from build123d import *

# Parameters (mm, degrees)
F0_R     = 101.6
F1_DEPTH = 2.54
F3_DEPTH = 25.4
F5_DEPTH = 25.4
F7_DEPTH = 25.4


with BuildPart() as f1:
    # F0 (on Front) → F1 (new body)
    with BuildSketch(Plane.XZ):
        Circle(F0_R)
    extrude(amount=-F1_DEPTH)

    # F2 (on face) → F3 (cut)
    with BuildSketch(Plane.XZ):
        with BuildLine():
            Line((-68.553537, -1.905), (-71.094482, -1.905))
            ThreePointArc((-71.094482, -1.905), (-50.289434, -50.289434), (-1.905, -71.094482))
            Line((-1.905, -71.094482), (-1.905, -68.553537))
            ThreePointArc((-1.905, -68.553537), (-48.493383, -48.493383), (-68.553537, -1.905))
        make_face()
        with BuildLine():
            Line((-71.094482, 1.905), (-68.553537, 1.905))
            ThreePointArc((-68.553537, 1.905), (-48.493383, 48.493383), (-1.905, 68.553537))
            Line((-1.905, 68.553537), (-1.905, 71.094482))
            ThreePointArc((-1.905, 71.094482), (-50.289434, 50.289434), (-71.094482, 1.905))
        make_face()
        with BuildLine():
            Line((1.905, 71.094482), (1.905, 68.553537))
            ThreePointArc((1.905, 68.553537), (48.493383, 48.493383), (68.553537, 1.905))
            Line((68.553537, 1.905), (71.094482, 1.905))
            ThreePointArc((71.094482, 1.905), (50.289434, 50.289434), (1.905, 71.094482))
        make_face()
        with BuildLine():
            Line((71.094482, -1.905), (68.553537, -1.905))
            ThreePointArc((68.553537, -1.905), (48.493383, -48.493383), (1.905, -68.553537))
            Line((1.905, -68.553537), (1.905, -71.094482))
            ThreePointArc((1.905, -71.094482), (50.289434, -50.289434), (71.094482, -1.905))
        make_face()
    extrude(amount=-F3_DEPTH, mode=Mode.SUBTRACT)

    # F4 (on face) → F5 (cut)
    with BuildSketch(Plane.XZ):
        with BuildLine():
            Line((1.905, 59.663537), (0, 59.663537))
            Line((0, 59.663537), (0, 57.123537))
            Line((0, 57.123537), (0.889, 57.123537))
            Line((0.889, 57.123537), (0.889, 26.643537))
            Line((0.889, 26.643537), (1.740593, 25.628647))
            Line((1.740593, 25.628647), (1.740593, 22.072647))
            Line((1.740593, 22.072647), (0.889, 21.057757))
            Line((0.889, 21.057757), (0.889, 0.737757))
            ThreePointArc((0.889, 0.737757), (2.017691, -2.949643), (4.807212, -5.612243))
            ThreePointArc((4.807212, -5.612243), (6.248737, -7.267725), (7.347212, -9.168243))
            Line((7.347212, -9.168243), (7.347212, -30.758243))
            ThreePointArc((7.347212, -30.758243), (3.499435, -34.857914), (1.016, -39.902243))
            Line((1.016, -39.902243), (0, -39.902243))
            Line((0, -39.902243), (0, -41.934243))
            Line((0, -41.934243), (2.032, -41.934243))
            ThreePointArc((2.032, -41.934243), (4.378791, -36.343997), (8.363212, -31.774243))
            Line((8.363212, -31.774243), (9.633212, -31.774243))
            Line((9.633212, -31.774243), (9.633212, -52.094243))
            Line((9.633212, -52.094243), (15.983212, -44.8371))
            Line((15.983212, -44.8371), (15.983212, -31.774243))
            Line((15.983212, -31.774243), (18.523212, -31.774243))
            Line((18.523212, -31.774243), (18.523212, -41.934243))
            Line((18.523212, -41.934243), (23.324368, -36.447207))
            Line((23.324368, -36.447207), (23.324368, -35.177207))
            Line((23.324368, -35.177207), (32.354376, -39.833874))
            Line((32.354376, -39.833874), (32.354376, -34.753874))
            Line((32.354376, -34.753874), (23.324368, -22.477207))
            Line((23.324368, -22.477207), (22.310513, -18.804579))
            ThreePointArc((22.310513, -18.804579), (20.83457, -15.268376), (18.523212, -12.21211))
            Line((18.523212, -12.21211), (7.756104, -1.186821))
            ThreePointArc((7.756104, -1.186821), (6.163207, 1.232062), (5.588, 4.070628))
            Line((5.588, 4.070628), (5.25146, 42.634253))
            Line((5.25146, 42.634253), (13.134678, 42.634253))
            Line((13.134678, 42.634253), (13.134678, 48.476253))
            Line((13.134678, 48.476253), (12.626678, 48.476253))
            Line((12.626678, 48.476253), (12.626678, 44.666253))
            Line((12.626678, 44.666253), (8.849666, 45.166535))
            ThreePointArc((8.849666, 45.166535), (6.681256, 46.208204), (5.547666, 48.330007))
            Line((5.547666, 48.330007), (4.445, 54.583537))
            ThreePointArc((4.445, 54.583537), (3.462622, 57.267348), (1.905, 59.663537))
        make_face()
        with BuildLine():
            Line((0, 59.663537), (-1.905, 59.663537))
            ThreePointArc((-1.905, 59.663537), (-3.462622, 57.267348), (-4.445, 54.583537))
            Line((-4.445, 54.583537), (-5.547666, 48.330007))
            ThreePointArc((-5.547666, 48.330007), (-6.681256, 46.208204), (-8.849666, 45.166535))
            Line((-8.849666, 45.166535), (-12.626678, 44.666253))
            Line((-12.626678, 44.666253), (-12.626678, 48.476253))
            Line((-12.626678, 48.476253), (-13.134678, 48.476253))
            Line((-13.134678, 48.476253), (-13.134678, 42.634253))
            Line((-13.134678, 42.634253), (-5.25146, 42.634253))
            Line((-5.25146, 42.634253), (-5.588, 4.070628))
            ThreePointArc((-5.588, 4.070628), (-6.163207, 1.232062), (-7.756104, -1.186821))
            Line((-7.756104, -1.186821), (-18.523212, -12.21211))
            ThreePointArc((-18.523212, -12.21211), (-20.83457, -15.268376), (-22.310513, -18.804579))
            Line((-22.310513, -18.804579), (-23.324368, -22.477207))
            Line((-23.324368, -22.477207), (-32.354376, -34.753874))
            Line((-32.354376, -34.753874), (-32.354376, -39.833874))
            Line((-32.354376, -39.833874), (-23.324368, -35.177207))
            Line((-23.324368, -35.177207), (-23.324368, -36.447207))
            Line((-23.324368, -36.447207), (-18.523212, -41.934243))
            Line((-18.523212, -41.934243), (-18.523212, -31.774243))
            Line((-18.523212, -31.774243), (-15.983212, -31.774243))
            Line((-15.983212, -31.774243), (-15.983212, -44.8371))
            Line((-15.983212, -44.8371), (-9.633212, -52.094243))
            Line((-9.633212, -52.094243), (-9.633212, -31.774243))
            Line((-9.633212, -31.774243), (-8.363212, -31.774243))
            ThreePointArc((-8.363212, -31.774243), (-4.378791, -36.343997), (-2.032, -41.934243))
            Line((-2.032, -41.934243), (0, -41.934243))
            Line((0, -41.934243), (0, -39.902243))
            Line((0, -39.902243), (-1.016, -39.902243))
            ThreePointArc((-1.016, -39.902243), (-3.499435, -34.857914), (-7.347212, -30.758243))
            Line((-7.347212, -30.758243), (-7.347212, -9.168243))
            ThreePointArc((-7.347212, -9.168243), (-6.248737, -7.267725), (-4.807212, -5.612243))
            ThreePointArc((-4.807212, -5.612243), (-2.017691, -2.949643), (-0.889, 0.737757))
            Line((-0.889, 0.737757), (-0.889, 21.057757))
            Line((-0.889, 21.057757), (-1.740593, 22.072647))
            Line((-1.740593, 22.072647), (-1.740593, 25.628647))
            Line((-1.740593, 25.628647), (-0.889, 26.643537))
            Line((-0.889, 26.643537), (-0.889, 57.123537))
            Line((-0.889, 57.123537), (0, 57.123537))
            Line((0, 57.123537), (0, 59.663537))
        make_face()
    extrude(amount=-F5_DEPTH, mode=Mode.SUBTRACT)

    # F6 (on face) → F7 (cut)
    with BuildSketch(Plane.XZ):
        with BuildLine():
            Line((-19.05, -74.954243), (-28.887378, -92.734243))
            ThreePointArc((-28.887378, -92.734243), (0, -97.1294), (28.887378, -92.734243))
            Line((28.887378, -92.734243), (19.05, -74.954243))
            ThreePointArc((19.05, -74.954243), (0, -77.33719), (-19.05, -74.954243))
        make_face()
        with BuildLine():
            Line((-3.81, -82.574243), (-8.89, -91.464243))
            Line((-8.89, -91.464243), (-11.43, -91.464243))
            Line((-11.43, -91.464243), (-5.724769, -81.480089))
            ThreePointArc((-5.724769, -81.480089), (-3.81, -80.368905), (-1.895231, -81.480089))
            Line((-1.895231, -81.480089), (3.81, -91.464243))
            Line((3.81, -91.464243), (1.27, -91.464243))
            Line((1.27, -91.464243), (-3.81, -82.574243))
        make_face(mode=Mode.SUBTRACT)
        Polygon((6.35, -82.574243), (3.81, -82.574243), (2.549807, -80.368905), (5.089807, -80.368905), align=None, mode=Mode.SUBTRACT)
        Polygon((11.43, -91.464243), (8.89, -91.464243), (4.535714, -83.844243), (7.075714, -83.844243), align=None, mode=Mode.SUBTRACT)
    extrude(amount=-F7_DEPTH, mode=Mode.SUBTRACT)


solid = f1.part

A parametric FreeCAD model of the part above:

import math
import FreeCAD as App
import Part
import Sketcher
from FreeCAD import Vector
Q = App.Units.Quantity

doc = App.newDocument("Part")
params = doc.addObject("Spreadsheet::Sheet", "Params")
for row, (alias, value) in enumerate([
    ("sketch1_diameter", "8 in"),
    ("pad1_length", "0.1 in"),
    ("sketch2_radius", "2.8 in"),
    ("sketch2_radius2", "2.7000001 in"),
    ("pocket1_length", "1 in"),
    ("sketch3_radius", "0.5 in"),
    ("sketch3_radius2", "0.3000001 in"),
    ("sketch3_width", "0.1 in"),
    ("sketch3_height", "0.2 in"),
    ("sketch3_height2", "0.4 in"),
    ("pocket2_length", "1 in"),
    ("sketch4_width", "0.1 in"),
    ("sketch4_length", "0.8 in"),
    ("sketch4_length2", "0.1 in"),
    ("pocket3_length", "1 in"),
], start=1):
    params.set(f"A{row}", alias)
    params.set(f"B{row}", "=" + value)
    params.setAlias(f"B{row}", alias)

body = doc.addObject("PartDesign::Body", "Body")
body.AllowCompound = True

# Sketch on XZ plane
sketch1 = body.newObject("Sketcher::SketchObject", "Sketch")
sketch1.AttachmentSupport = (doc.getObject("XZ_Plane"), [""])
sketch1.MapMode = "FlatFace"
sketch1.addGeometry(Part.Circle(Vector(0, 0, 0), Vector(0, 0, 1), 101.6), False)
sketch1.addConstraint(Sketcher.Constraint("Coincident", 0, 3, -1, 1))
sketch1.addConstraint(Sketcher.Constraint("Diameter", 0, Q("8 in")))
sketch1.setExpression("Constraints[1]", "Params.sketch1_diameter")
pad1 = body.newObject("PartDesign::Pad", "Pad")
pad1.Profile = sketch1
pad1.setExpression("Length", "Params.pad1_length")
pad1.Reversed = True

# Sketch on XZ plane
sketch2 = body.newObject("Sketcher::SketchObject", "Sketch001")
sketch2.AttachmentSupport = (doc.getObject("XZ_Plane"), [""])
sketch2.MapMode = "FlatFace"
sketch2.addGeometry(Part.LineSegment(Vector(-68.553537, -1.905, 0), Vector(-71.094482, -1.905, 0)), False)
sketch2.addGeometry(Part.ArcOfCircle(Part.Circle(Vector(0.000001, 0.000001, 0), Vector(0, 0, 1), 71.120001), math.radians(-178.465107), math.radians(-91.534893)), False)
sketch2.addGeometry(Part.LineSegment(Vector(-1.905, -71.094482, 0), Vector(-1.905, -68.553537, 0)), False)
sketch2.addGeometry(Part.ArcOfCircle(Part.Circle(Vector(0.000001, 0.000001, 0), Vector(0, 0, 1), 68.580002), math.radians(-178.408245), math.radians(-91.591755)), False)
sketch2.addGeometry(Part.LineSegment(Vector(-71.094482, 1.905, 0), Vector(-68.553537, 1.905, 0)), False)
sketch2.addGeometry(Part.ArcOfCircle(Part.Circle(Vector(0.000001, -0.000001, 0), Vector(0, 0, 1), 68.580002), math.radians(91.591755), math.radians(178.408245)), False)
sketch2.addGeometry(Part.LineSegment(Vector(-1.905, 68.553537, 0), Vector(-1.905, 71.094482, 0)), False)
sketch2.addGeometry(Part.ArcOfCircle(Part.Circle(Vector(0.000001, -0.000001, 0), Vector(0, 0, 1), 71.120001), math.radians(91.534893), math.radians(178.465107)), False)
sketch2.addGeometry(Part.LineSegment(Vector(1.905, 71.094482, 0), Vector(1.905, 68.553537, 0)), False)
sketch2.addGeometry(Part.ArcOfCircle(Part.Circle(Vector(-0.000001, -0.000001, 0), Vector(0, 0, 1), 68.580002), math.radians(1.591755), math.radians(88.408245)), False)
sketch2.addGeometry(Part.LineSegment(Vector(68.553537, 1.905, 0), Vector(71.094482, 1.905, 0)), False)
sketch2.addGeometry(Part.ArcOfCircle(Part.Circle(Vector(-0.000001, -0.000001, 0), Vector(0, 0, 1), 71.120001), math.radians(1.534893), math.radians(88.465107)), False)
sketch2.addGeometry(Part.LineSegment(Vector(71.094482, -1.905, 0), Vector(68.553537, -1.905, 0)), False)
sketch2.addGeometry(Part.ArcOfCircle(Part.Circle(Vector(-0.000001, 0.000001, 0), Vector(0, 0, 1), 68.580002), math.radians(-88.408245), math.radians(-1.591755)), False)
sketch2.addGeometry(Part.LineSegment(Vector(1.905, -68.553537, 0), Vector(1.905, -71.094482, 0)), False)
sketch2.addGeometry(Part.ArcOfCircle(Part.Circle(Vector(-0.000001, 0.000001, 0), Vector(0, 0, 1), 71.120001), math.radians(-88.465107), math.radians(-1.534893)), False)
sketch2.addConstraint(Sketcher.Constraint("Coincident", 0, 2, 1, 1))
sketch2.addConstraint(Sketcher.Constraint("Coincident", 1, 2, 2, 1))
sketch2.addConstraint(Sketcher.Constraint("Coincident", 2, 2, 3, 2))
sketch2.addConstraint(Sketcher.Constraint("Coincident", 3, 1, 0, 1))
sketch2.addConstraint(Sketcher.Constraint("Coincident", 4, 2, 5, 2))
sketch2.addConstraint(Sketcher.Constraint("Coincident", 5, 1, 6, 1))
sketch2.addConstraint(Sketcher.Constraint("Coincident", 6, 2, 7, 1))
sketch2.addConstraint(Sketcher.Constraint("Coincident", 7, 2, 4, 1))
sketch2.addConstraint(Sketcher.Constraint("Coincident", 8, 2, 9, 2))
sketch2.addConstraint(Sketcher.Constraint("Coincident", 9, 1, 10, 1))
sketch2.addConstraint(Sketcher.Constraint("Coincident", 10, 2, 11, 1))
sketch2.addConstraint(Sketcher.Constraint("Coincident", 11, 2, 8, 1))
sketch2.addConstraint(Sketcher.Constraint("Coincident", 12, 2, 13, 2))
sketch2.addConstraint(Sketcher.Constraint("Coincident", 13, 1, 14, 1))
sketch2.addConstraint(Sketcher.Constraint("Coincident", 14, 2, 15, 1))
sketch2.addConstraint(Sketcher.Constraint("Coincident", 15, 2, 12, 1))
sketch2.addConstraint(Sketcher.Constraint("Horizontal", 0))
sketch2.addConstraint(Sketcher.Constraint("Vertical", 2))
sketch2.addConstraint(Sketcher.Constraint("Horizontal", 4))
sketch2.addConstraint(Sketcher.Constraint("Vertical", 6))
sketch2.addConstraint(Sketcher.Constraint("Vertical", 8))
sketch2.addConstraint(Sketcher.Constraint("Horizontal", 10))
sketch2.addConstraint(Sketcher.Constraint("Horizontal", 12))
sketch2.addConstraint(Sketcher.Constraint("Vertical", 14))
sketch2.addConstraint(Sketcher.Constraint("Coincident", 1, 3, -1, 1))
sketch2.addConstraint(Sketcher.Constraint("Coincident", 3, 3, -1, 1))
sketch2.addConstraint(Sketcher.Constraint("Coincident", 5, 3, -1, 1))
sketch2.addConstraint(Sketcher.Constraint("Coincident", 7, 3, -1, 1))
sketch2.addConstraint(Sketcher.Constraint("Coincident", 9, 3, -1, 1))
sketch2.addConstraint(Sketcher.Constraint("Coincident", 11, 3, -1, 1))
sketch2.addConstraint(Sketcher.Constraint("Coincident", 13, 3, -1, 1))
sketch2.addConstraint(Sketcher.Constraint("Coincident", 15, 3, -1, 1))
sketch2.addConstraint(Sketcher.Constraint("Equal", 3, 5))
sketch2.addConstraint(Sketcher.Constraint("Equal", 1, 7))
sketch2.addConstraint(Sketcher.Constraint("Equal", 5, 9))
sketch2.addConstraint(Sketcher.Constraint("Equal", 7, 11))
sketch2.addConstraint(Sketcher.Constraint("Equal", 9, 13))
sketch2.addConstraint(Sketcher.Constraint("Equal", 11, 15))
sketch2.addConstraint(Sketcher.Constraint("Horizontal", 5, 1, 8, 2))
sketch2.addConstraint(Sketcher.Constraint("Horizontal", 7, 2, 9, 1))
sketch2.addConstraint(Sketcher.Constraint("Horizontal", 3, 1, 12, 2))
sketch2.addConstraint(Sketcher.Constraint("Horizontal", 2, 2, 13, 1))
sketch2.addConstraint(Sketcher.Constraint("Vertical", 3, 1, 4, 2))
sketch2.addConstraint(Sketcher.Constraint("Vertical", 2, 2, 5, 1))
sketch2.addConstraint(Sketcher.Constraint("Radius", 1, Q("2.8 in")))
sketch2.addConstraint(Sketcher.Constraint("Radius", 3, Q("2.7000001 in")))
sketch2.addConstraint(Sketcher.Constraint("DistanceY", 3, 1, 4, 2, Q("0.15 in")))
sketch2.addConstraint(Sketcher.Constraint("DistanceX", 5, 1, 8, 2, Q("0.15 in")))
sketch2.setExpression("Constraints[44]", "Params.sketch2_radius")
sketch2.setExpression("Constraints[45]", "Params.sketch2_radius2")
pocket1 = body.newObject("PartDesign::Pocket", "Pocket")
pocket1.Profile = sketch2
pocket1.setExpression("Length", "Params.pocket1_length")

# Sketch on XZ plane
sketch3 = body.newObject("Sketcher::SketchObject", "Sketch002")
sketch3.AttachmentSupport = (doc.getObject("XZ_Plane"), [""])
sketch3.MapMode = "FlatFace"
sketch3.addGeometry(Part.LineSegment(Vector(1.905, 59.663537, 0), Vector(-1.905, 59.663537, 0)), False)
sketch3.addGeometry(Part.ArcOfCircle(Part.Circle(Vector(7.896604, 51.587735, 0), Vector(0, 0, 1), 12.7), math.radians(140.513983), math.radians(166.355915)), False)
sketch3.addGeometry(Part.LineSegment(Vector(-4.445, 54.583537, 0), Vector(-5.547666, 48.330007, 0)), False)
sketch3.addGeometry(Part.ArcOfCircle(Part.Circle(Vector(-9.357666, 49.001813, 0), Vector(0, 0, 1), 3.868776), math.radians(-82.454833), math.radians(-10.000009)), False)
sketch3.addGeometry(Part.LineSegment(Vector(-8.849666, 45.166535, 0), Vector(-12.626678, 44.666253, 0)), False)
sketch3.addGeometry(Part.LineSegment(Vector(-12.626678, 44.666253, 0), Vector(-12.626678, 48.476253, 0)), False)
sketch3.addGeometry(Part.LineSegment(Vector(-12.626678, 48.476253, 0), Vector(-13.134678, 48.476253, 0)), False)
sketch3.addGeometry(Part.LineSegment(Vector(-13.134678, 48.476253, 0), Vector(-13.134678, 42.634253, 0)), False)
sketch3.addGeometry(Part.LineSegment(Vector(-13.134678, 42.634253, 0), Vector(-5.25146, 42.634253, 0)), False)
sketch3.addGeometry(Part.LineSegment(Vector(-5.25146, 42.634253, 0), Vector(-5.588, 4.070628, 0)), False)
sketch3.addGeometry(Part.ArcOfCircle(Part.Circle(Vector(-13.207704, 4.137122, 0), Vector(0, 0, 1), 7.619994), math.radians(-44.321254), math.radians(-0.499982)), False)
sketch3.addGeometry(Part.LineSegment(Vector(-7.756104, -1.186821, 0), Vector(-18.523212, -12.21211, 0)), False)
sketch3.addGeometry(Part.ArcOfCircle(Part.Circle(Vector(-7.620012, -22.859994, 0), Vector(0, 0, 1), 15.239987), math.radians(135.678751), math.radians(164.567461)), False)
sketch3.addGeometry(Part.LineSegment(Vector(-22.310513, -18.804579, 0), Vector(-23.324368, -22.477207, 0)), False)
sketch3.addGeometry(Part.LineSegment(Vector(-23.324368, -22.477207, 0), Vector(-32.354376, -34.753874, 0)), False)
sketch3.addGeometry(Part.LineSegment(Vector(-32.354376, -34.753874, 0), Vector(-32.354376, -39.833874, 0)), False)
sketch3.addGeometry(Part.LineSegment(Vector(-32.354376, -39.833874, 0), Vector(-23.324368, -35.177207, 0)), False)
sketch3.addGeometry(Part.LineSegment(Vector(-23.324368, -35.177207, 0), Vector(-23.324368, -36.447207, 0)), False)
sketch3.addGeometry(Part.LineSegment(Vector(-23.324368, -36.447207, 0), Vector(-18.523212, -41.934243, 0)), False)
sketch3.addGeometry(Part.LineSegment(Vector(-18.523212, -41.934243, 0), Vector(-18.523212, -31.774243, 0)), False)
sketch3.addGeometry(Part.LineSegment(Vector(-18.523212, -31.774243, 0), Vector(-15.983212, -31.774243, 0)), False)
sketch3.addGeometry(Part.LineSegment(Vector(-15.983212, -31.774243, 0), Vector(-15.983212, -44.8371, 0)), False)
sketch3.addGeometry(Part.LineSegment(Vector(-15.983212, -44.8371, 0), Vector(-9.633212, -52.094243, 0)), False)
sketch3.addGeometry(Part.LineSegment(Vector(-9.633212, -52.094243, 0), Vector(-9.633212, -31.774243, 0)), False)
sketch3.addGeometry(Part.LineSegment(Vector(-9.633212, -31.774243, 0), Vector(-8.363212, -31.774243, 0)), False)
sketch3.addGeometry(Part.ArcOfCircle(Part.Circle(Vector(-20.546574, -46.418965, 0), Vector(0, 0, 1), 19.049992), math.radians(13.616297), math.radians(50.241963)), False)
sketch3.addGeometry(Part.LineSegment(Vector(-2.032, -41.934243, 0), Vector(2.032, -41.934243, 0)), False)
sketch3.addGeometry(Part.ArcOfCircle(Part.Circle(Vector(20.546574, -46.418965, 0), Vector(0, 0, 1), 19.049992), math.radians(129.758037), math.radians(166.383703)), False)
sketch3.addGeometry(Part.LineSegment(Vector(8.363212, -31.774243, 0), Vector(9.633212, -31.774243, 0)), False)
sketch3.addGeometry(Part.LineSegment(Vector(9.633212, -31.774243, 0), Vector(9.633212, -52.094243, 0)), False)
sketch3.addGeometry(Part.LineSegment(Vector(9.633212, -52.094243, 0), Vector(15.983212, -44.8371, 0)), False)
sketch3.addGeometry(Part.LineSegment(Vector(15.983212, -44.8371, 0), Vector(15.983212, -31.774243, 0)), False)
sketch3.addGeometry(Part.LineSegment(Vector(15.983212, -31.774243, 0), Vector(18.523212, -31.774243, 0)), False)
sketch3.addGeometry(Part.LineSegment(Vector(18.523212, -31.774243, 0), Vector(18.523212, -41.934243, 0)), False)
sketch3.addGeometry(Part.LineSegment(Vector(18.523212, -41.934243, 0), Vector(23.324368, -36.447207, 0)), False)
sketch3.addGeometry(Part.LineSegment(Vector(23.324368, -36.447207, 0), Vector(23.324368, -35.177207, 0)), False)
sketch3.addGeometry(Part.LineSegment(Vector(23.324368, -35.177207, 0), Vector(32.354376, -39.833874, 0)), False)
sketch3.addGeometry(Part.LineSegment(Vector(32.354376, -39.833874, 0), Vector(32.354376, -34.753874, 0)), False)
sketch3.addGeometry(Part.LineSegment(Vector(32.354376, -34.753874, 0), Vector(23.324368, -22.477207, 0)), False)
sketch3.addGeometry(Part.LineSegment(Vector(23.324368, -22.477207, 0), Vector(22.310513, -18.804579, 0)), False)
sketch3.addGeometry(Part.ArcOfCircle(Part.Circle(Vector(7.620012, -22.859994, 0), Vector(0, 0, 1), 15.239987), math.radians(15.432539), math.radians(44.321249)), False)
sketch3.addGeometry(Part.LineSegment(Vector(18.523212, -12.21211, 0), Vector(7.756104, -1.186821, 0)), False)
sketch3.addGeometry(Part.ArcOfCircle(Part.Circle(Vector(13.207704, 4.137122, 0), Vector(0, 0, 1), 7.619994), math.radians(-179.500018), math.radians(-135.678746)), False)
sketch3.addGeometry(Part.LineSegment(Vector(5.588, 4.070628, 0), Vector(5.25146, 42.634253, 0)), False)
sketch3.addGeometry(Part.LineSegment(Vector(5.25146, 42.634253, 0), Vector(13.134678, 42.634253, 0)), False)
sketch3.addGeometry(Part.LineSegment(Vector(13.134678, 42.634253, 0), Vector(13.134678, 48.476253, 0)), False)
sketch3.addGeometry(Part.LineSegment(Vector(13.134678, 48.476253, 0), Vector(12.626678, 48.476253, 0)), False)
sketch3.addGeometry(Part.LineSegment(Vector(12.626678, 48.476253, 0), Vector(12.626678, 44.666253, 0)), False)
sketch3.addGeometry(Part.LineSegment(Vector(12.626678, 44.666253, 0), Vector(8.849666, 45.166535, 0)), False)
sketch3.addGeometry(Part.ArcOfCircle(Part.Circle(Vector(9.357666, 49.001813, 0), Vector(0, 0, 1), 3.868776), math.radians(-169.999991), math.radians(-97.545167)), False)
sketch3.addGeometry(Part.LineSegment(Vector(5.547666, 48.330007, 0), Vector(4.445, 54.583537, 0)), False)
sketch3.addGeometry(Part.ArcOfCircle(Part.Circle(Vector(-7.896604, 51.587735, 0), Vector(0, 0, 1), 12.7), math.radians(13.644085), math.radians(39.486017)), False)
sketch3.addGeometry(Part.LineSegment(Vector(0.889, 57.123537, 0), Vector(0.889, 26.643537, 0)), False)
sketch3.addGeometry(Part.LineSegment(Vector(0.889, 26.643537, 0), Vector(1.740593, 25.628647, 0)), False)
sketch3.addGeometry(Part.LineSegment(Vector(1.740593, 25.628647, 0), Vector(1.740593, 22.072647, 0)), False)
sketch3.addGeometry(Part.LineSegment(Vector(1.740593, 22.072647, 0), Vector(0.889, 21.057757, 0)), False)
sketch3.addGeometry(Part.LineSegment(Vector(0.889, 21.057757, 0), Vector(0.889, 0.737757, 0)), False)
sketch3.addGeometry(Part.ArcOfCircle(Part.Circle(Vector(8.50253, 1.05177, 0), Vector(0, 0, 1), 7.620003), math.radians(-177.638226), math.radians(-119.009178)), False)
sketch3.addGeometry(Part.ArcOfCircle(Part.Circle(Vector(-3.05225, -13.911287, 0), Vector(0, 0, 1), 11.430017), math.radians(24.517043), math.radians(46.558312)), False)
sketch3.addGeometry(Part.LineSegment(Vector(7.347212, -9.168243, 0), Vector(7.347212, -30.758243, 0)), False)
sketch3.addGeometry(Part.ArcOfCircle(Part.Circle(Vector(19.161586, -45.702227, 0), Vector(0, 0, 1), 19.049989), math.radians(128.329093), math.radians(162.274243)), False)
sketch3.addGeometry(Part.LineSegment(Vector(1.016, -39.902243, 0), Vector(-1.016, -39.902243, 0)), False)
sketch3.addGeometry(Part.ArcOfCircle(Part.Circle(Vector(-19.161586, -45.702227, 0), Vector(0, 0, 1), 19.049989), math.radians(17.725757), math.radians(51.670907)), False)
sketch3.addGeometry(Part.LineSegment(Vector(-7.347212, -30.758243, 0), Vector(-7.347212, -9.168243, 0)), False)
sketch3.addGeometry(Part.ArcOfCircle(Part.Circle(Vector(3.05225, -13.911287, 0), Vector(0, 0, 1), 11.430017), math.radians(133.441688), math.radians(155.482957)), False)
sketch3.addGeometry(Part.ArcOfCircle(Part.Circle(Vector(-8.50253, 1.05177, 0), Vector(0, 0, 1), 7.620003), math.radians(-60.990822), math.radians(-2.361774)), False)
sketch3.addGeometry(Part.LineSegment(Vector(-0.889, 0.737757, 0), Vector(-0.889, 21.057757, 0)), False)
sketch3.addGeometry(Part.LineSegment(Vector(-0.889, 21.057757, 0), Vector(-1.740593, 22.072647, 0)), False)
sketch3.addGeometry(Part.LineSegment(Vector(-1.740593, 22.072647, 0), Vector(-1.740593, 25.628647, 0)), False)
sketch3.addGeometry(Part.LineSegment(Vector(-1.740593, 25.628647, 0), Vector(-0.889, 26.643537, 0)), False)
sketch3.addGeometry(Part.LineSegment(Vector(-0.889, 26.643537, 0), Vector(-0.889, 57.123537, 0)), False)
sketch3.addGeometry(Part.LineSegment(Vector(-0.889, 57.123537, 0), Vector(0.889, 57.123537, 0)), False)
sketch3.addConstraint(Sketcher.Constraint("Coincident", 0, 2, 1, 1))
sketch3.addConstraint(Sketcher.Constraint("Coincident", 1, 2, 2, 1))
sketch3.addConstraint(Sketcher.Constraint("Tangent", 2, 2, 3, 2))
sketch3.addConstraint(Sketcher.Constraint("Tangent", 3, 1, 4, 1))
sketch3.addConstraint(Sketcher.Constraint("Coincident", 4, 2, 5, 1))
sketch3.addConstraint(Sketcher.Constraint("Coincident", 5, 2, 6, 1))
sketch3.addConstraint(Sketcher.Constraint("Coincident", 6, 2, 7, 1))
sketch3.addConstraint(Sketcher.Constraint("Coincident", 7, 2, 8, 1))
sketch3.addConstraint(Sketcher.Constraint("Coincident", 8, 2, 9, 1))
sketch3.addConstraint(Sketcher.Constraint("Tangent", 9, 2, 10, 2))
sketch3.addConstraint(Sketcher.Constraint("Tangent", 10, 1, 11, 1))
sketch3.addConstraint(Sketcher.Constraint("Tangent", 11, 2, 12, 1))
sketch3.addConstraint(Sketcher.Constraint("Tangent", 12, 2, 13, 1))
sketch3.addConstraint(Sketcher.Constraint("Coincident", 13, 2, 14, 1))
sketch3.addConstraint(Sketcher.Constraint("Coincident", 14, 2, 15, 1))
sketch3.addConstraint(Sketcher.Constraint("Coincident", 15, 2, 16, 1))
sketch3.addConstraint(Sketcher.Constraint("Coincident", 16, 2, 17, 1))
sketch3.addConstraint(Sketcher.Constraint("Coincident", 17, 2, 18, 1))
sketch3.addConstraint(Sketcher.Constraint("Coincident", 18, 2, 19, 1))
sketch3.addConstraint(Sketcher.Constraint("Coincident", 19, 2, 20, 1))
sketch3.addConstraint(Sketcher.Constraint("Coincident", 20, 2, 21, 1))
sketch3.addConstraint(Sketcher.Constraint("Coincident", 21, 2, 22, 1))
sketch3.addConstraint(Sketcher.Constraint("Coincident", 22, 2, 23, 1))
sketch3.addConstraint(Sketcher.Constraint("Coincident", 23, 2, 24, 1))
sketch3.addConstraint(Sketcher.Constraint("Coincident", 24, 2, 25, 2))
sketch3.addConstraint(Sketcher.Constraint("Coincident", 25, 1, 26, 1))
sketch3.addConstraint(Sketcher.Constraint("Coincident", 26, 2, 27, 2))
sketch3.addConstraint(Sketcher.Constraint("Coincident", 27, 1, 28, 1))
sketch3.addConstraint(Sketcher.Constraint("Coincident", 28, 2, 29, 1))
sketch3.addConstraint(Sketcher.Constraint("Coincident", 29, 2, 30, 1))
sketch3.addConstraint(Sketcher.Constraint("Coincident", 30, 2, 31, 1))
sketch3.addConstraint(Sketcher.Constraint("Coincident", 31, 2, 32, 1))
sketch3.addConstraint(Sketcher.Constraint("Coincident", 32, 2, 33, 1))
sketch3.addConstraint(Sketcher.Constraint("Coincident", 33, 2, 34, 1))
sketch3.addConstraint(Sketcher.Constraint("Coincident", 34, 2, 35, 1))
sketch3.addConstraint(Sketcher.Constraint("Coincident", 35, 2, 36, 1))
sketch3.addConstraint(Sketcher.Constraint("Coincident", 36, 2, 37, 1))
sketch3.addConstraint(Sketcher.Constraint("Coincident", 37, 2, 38, 1))
sketch3.addConstraint(Sketcher.Constraint("Coincident", 38, 2, 39, 1))
sketch3.addConstraint(Sketcher.Constraint("Tangent", 39, 2, 40, 1))
sketch3.addConstraint(Sketcher.Constraint("Tangent", 40, 2, 41, 1))
sketch3.addConstraint(Sketcher.Constraint("Tangent", 41, 2, 42, 2))
sketch3.addConstraint(Sketcher.Constraint("Tangent", 42, 1, 43, 1))
sketch3.addConstraint(Sketcher.Constraint("Coincident", 43, 2, 44, 1))
sketch3.addConstraint(Sketcher.Constraint("Coincident", 44, 2, 45, 1))
sketch3.addConstraint(Sketcher.Constraint("Coincident", 45, 2, 46, 1))
sketch3.addConstraint(Sketcher.Constraint("Coincident", 46, 2, 47, 1))
sketch3.addConstraint(Sketcher.Constraint("Coincident", 47, 2, 48, 1))
sketch3.addConstraint(Sketcher.Constraint("Tangent", 48, 2, 49, 2))
sketch3.addConstraint(Sketcher.Constraint("Tangent", 49, 1, 50, 1))
sketch3.addConstraint(Sketcher.Constraint("Coincident", 50, 2, 51, 1))
sketch3.addConstraint(Sketcher.Constraint("Coincident", 51, 2, 0, 1))
sketch3.addConstraint(Sketcher.Constraint("Coincident", 52, 2, 53, 1))
sketch3.addConstraint(Sketcher.Constraint("Coincident", 53, 2, 54, 1))
sketch3.addConstraint(Sketcher.Constraint("Coincident", 54, 2, 55, 1))
sketch3.addConstraint(Sketcher.Constraint("Coincident", 55, 2, 56, 1))
sketch3.addConstraint(Sketcher.Constraint("Coincident", 56, 2, 57, 1))
sketch3.addConstraint(Sketcher.Constraint("Coincident", 57, 2, 58, 2))
sketch3.addConstraint(Sketcher.Constraint("Coincident", 58, 1, 59, 1))
sketch3.addConstraint(Sketcher.Constraint("Coincident", 59, 2, 60, 1))
sketch3.addConstraint(Sketcher.Constraint("Coincident", 60, 2, 61, 1))
sketch3.addConstraint(Sketcher.Constraint("Coincident", 61, 2, 62, 1))
sketch3.addConstraint(Sketcher.Constraint("Coincident", 62, 2, 63, 1))
sketch3.addConstraint(Sketcher.Constraint("Coincident", 63, 2, 64, 2))
sketch3.addConstraint(Sketcher.Constraint("Coincident", 64, 1, 65, 1))
sketch3.addConstraint(Sketcher.Constraint("Coincident", 65, 2, 66, 1))
sketch3.addConstraint(Sketcher.Constraint("Coincident", 66, 2, 67, 1))
sketch3.addConstraint(Sketcher.Constraint("Coincident", 67, 2, 68, 1))
sketch3.addConstraint(Sketcher.Constraint("Coincident", 68, 2, 69, 1))
sketch3.addConstraint(Sketcher.Constraint("Coincident", 69, 2, 70, 1))
sketch3.addConstraint(Sketcher.Constraint("Coincident", 70, 2, 71, 1))
sketch3.addConstraint(Sketcher.Constraint("Coincident", 71, 2, 52, 1))
sketch3.addConstraint(Sketcher.Constraint("Horizontal", 0))
sketch3.addConstraint(Sketcher.Constraint("Vertical", 5))
sketch3.addConstraint(Sketcher.Constraint("Horizontal", 6))
sketch3.addConstraint(Sketcher.Constraint("Vertical", 7))
sketch3.addConstraint(Sketcher.Constraint("Horizontal", 8))
sketch3.addConstraint(Sketcher.Constraint("Vertical", 15))
sketch3.addConstraint(Sketcher.Constraint("Vertical", 17))
sketch3.addConstraint(Sketcher.Constraint("Vertical", 19))
sketch3.addConstraint(Sketcher.Constraint("Horizontal", 20))
sketch3.addConstraint(Sketcher.Constraint("Vertical", 21))
sketch3.addConstraint(Sketcher.Constraint("Vertical", 23))
sketch3.addConstraint(Sketcher.Constraint("Horizontal", 24))
sketch3.addConstraint(Sketcher.Constraint("Horizontal", 26))
sketch3.addConstraint(Sketcher.Constraint("Horizontal", 28))
sketch3.addConstraint(Sketcher.Constraint("Vertical", 29))
sketch3.addConstraint(Sketcher.Constraint("Vertical", 31))
sketch3.addConstraint(Sketcher.Constraint("Horizontal", 32))
sketch3.addConstraint(Sketcher.Constraint("Vertical", 33))
sketch3.addConstraint(Sketcher.Constraint("Vertical", 35))
sketch3.addConstraint(Sketcher.Constraint("Vertical", 37))
sketch3.addConstraint(Sketcher.Constraint("Horizontal", 44))
sketch3.addConstraint(Sketcher.Constraint("Vertical", 45))
sketch3.addConstraint(Sketcher.Constraint("Horizontal", 46))
sketch3.addConstraint(Sketcher.Constraint("Vertical", 47))
sketch3.addConstraint(Sketcher.Constraint("Vertical", 52))
sketch3.addConstraint(Sketcher.Constraint("Vertical", 54))
sketch3.addConstraint(Sketcher.Constraint("Vertical", 56))
sketch3.addConstraint(Sketcher.Constraint("Vertical", 59))
sketch3.addConstraint(Sketcher.Constraint("Horizontal", 61))
sketch3.addConstraint(Sketcher.Constraint("Vertical", 63))
sketch3.addConstraint(Sketcher.Constraint("Vertical", 66))
sketch3.addConstraint(Sketcher.Constraint("Vertical", 68))
sketch3.addConstraint(Sketcher.Constraint("Vertical", 70))
sketch3.addConstraint(Sketcher.Constraint("Horizontal", 71))
sketch3.addConstraint(Sketcher.Constraint("Equal", 25, 27))
sketch3.addConstraint(Sketcher.Constraint("Equal", 12, 40))
sketch3.addConstraint(Sketcher.Constraint("Equal", 10, 42))
sketch3.addConstraint(Sketcher.Constraint("Equal", 3, 49))
sketch3.addConstraint(Sketcher.Constraint("Equal", 1, 51))
sketch3.addConstraint(Sketcher.Constraint("Equal", 60, 62))
sketch3.addConstraint(Sketcher.Constraint("Equal", 58, 64))
sketch3.addConstraint(Sketcher.Constraint("Equal", 57, 65))
sketch3.addConstraint(Sketcher.Constraint("Symmetric", 25, 3, 27, 3, -2))
sketch3.addConstraint(Sketcher.Constraint("Symmetric", 12, 3, 40, 3, -2))
sketch3.addConstraint(Sketcher.Constraint("Symmetric", 10, 3, 42, 3, -2))
sketch3.addConstraint(Sketcher.Constraint("Symmetric", 3, 3, 49, 3, -2))
sketch3.addConstraint(Sketcher.Constraint("Symmetric", 1, 3, 51, 3, -2))
sketch3.addConstraint(Sketcher.Constraint("Symmetric", 60, 3, 62, 3, -2))
sketch3.addConstraint(Sketcher.Constraint("Symmetric", 58, 3, 64, 3, -2))
sketch3.addConstraint(Sketcher.Constraint("Symmetric", 57, 3, 65, 3, -2))
sketch3.addConstraint(Sketcher.Constraint("Symmetric", 23, 2, 28, 2, -2))
sketch3.addConstraint(Sketcher.Constraint("Symmetric", 21, 2, 30, 2, -2))
sketch3.addConstraint(Sketcher.Constraint("Symmetric", 19, 2, 32, 2, -2))
sketch3.addConstraint(Sketcher.Constraint("Symmetric", 17, 2, 34, 2, -2))
sketch3.addConstraint(Sketcher.Constraint("Symmetric", 15, 2, 36, 2, -2))
sketch3.addConstraint(Sketcher.Constraint("Symmetric", 13, 2, 38, 2, -2))
sketch3.addConstraint(Sketcher.Constraint("Symmetric", 8, 2, 43, 2, -2))
sketch3.addConstraint(Sketcher.Constraint("Symmetric", 6, 2, 45, 2, -2))
sketch3.addConstraint(Sketcher.Constraint("Symmetric", 4, 2, 47, 2, -2))
sketch3.addConstraint(Sketcher.Constraint("Symmetric", 55, 2, 66, 2, -2))
sketch3.addConstraint(Sketcher.Constraint("Symmetric", 54, 2, 67, 2, -2))
sketch3.addConstraint(Sketcher.Constraint("Symmetric", 52, 2, 69, 2, -2))
sketch3.addConstraint(Sketcher.Constraint("Parallel", 18, 22))
sketch3.addConstraint(Sketcher.Constraint("Parallel", 30, 34))
sketch3.addConstraint(Sketcher.Constraint("Parallel", 53, 67))
sketch3.addConstraint(Sketcher.Constraint("Parallel", 55, 69))
sketch3.addConstraint(Sketcher.Constraint("Horizontal", 20, 2, 23, 2))
sketch3.addConstraint(Sketcher.Constraint("Horizontal", 18, 2, 25, 1))
sketch3.addConstraint(Sketcher.Constraint("Horizontal", 22, 2, 29, 2))
sketch3.addConstraint(Sketcher.Constraint("Horizontal", 16, 2, 35, 2))
sketch3.addConstraint(Sketcher.Constraint("Horizontal", 14, 2, 37, 2))
sketch3.addConstraint(Sketcher.Constraint("Horizontal", 2, 2, 49, 1))
sketch3.addConstraint(Sketcher.Constraint("Horizontal", 59, 2, 62, 2))
sketch3.addConstraint(Sketcher.Constraint("Vertical", 13, 2, 16, 2))
sketch3.addConstraint(Sketcher.Constraint("Vertical", 11, 2, 18, 2))
sketch3.addConstraint(Sketcher.Constraint("Vertical", 52, 2, 55, 2))
sketch3.addConstraint(Sketcher.Constraint("Equal", 0, 5))
sketch3.addConstraint(Sketcher.Constraint("Equal", 28, 17))
sketch3.addConstraint(Sketcher.Constraint("Equal", 29, 56))
sketch3.addConstraint(Sketcher.Constraint("Equal", 4, 13))
sketch3.addConstraint(Sketcher.Constraint("Radius", 1, Q("0.5 in")))
sketch3.addConstraint(Sketcher.Constraint("Radius", 57, Q("0.3000001 in")))
sketch3.addConstraint(Sketcher.Constraint("DistanceX", 20, 1, 20, 2, Q("0.1 in")))
sketch3.addConstraint(Sketcher.Constraint("DistanceY", 15, 2, 15, 1, Q("0.2 in")))
sketch3.addConstraint(Sketcher.Constraint("DistanceY", 19, 1, 19, 2, Q("0.4 in")))
sketch3.addConstraint(Sketcher.Constraint("DistanceY", 23, 1, 23, 2, Q("0.8 in")))
sketch3.addConstraint(Sketcher.Constraint("DistanceY", 52, 2, 52, 1, Q("1.2 in")))
sketch3.addConstraint(Sketcher.Constraint("Angle", 2, Q("-99.999999 deg")))
sketch3.addConstraint(Sketcher.Constraint("Distance", 14, Q("0.6 in")))
sketch3.addConstraint(Sketcher.Constraint("Distance", 16, Q("0.4 in")))
sketch3.addConstraint(Sketcher.Constraint("DistanceX", 0, 2, 0, 1, Q("0.15 in")))
sketch3.addConstraint(Sketcher.Constraint("DistanceX", 6, 2, 6, 1, Q("0.02 in")))
sketch3.addConstraint(Sketcher.Constraint("DistanceX", 24, 1, 24, 2, Q("0.05 in")))
sketch3.addConstraint(Sketcher.Constraint("DistanceX", 26, 1, 26, 2, Q("0.16 in")))
sketch3.addConstraint(Sketcher.Constraint("DistanceX", 61, 2, 61, 1, Q("0.08 in")))
sketch3.addConstraint(Sketcher.Constraint("DistanceX", 71, 1, 71, 2, Q("0.07 in")))
sketch3.addConstraint(Sketcher.Constraint("DistanceY", 7, 2, 7, 1, Q("0.23 in")))
sketch3.addConstraint(Sketcher.Constraint("DistanceY", 54, 2, 54, 1, Q("0.14 in")))
sketch3.addConstraint(Sketcher.Constraint("DistanceY", 59, 2, 59, 1, Q("0.85 in")))
sketch3.addConstraint(Sketcher.Constraint("Angle", 9, Q("-90.500001 deg")))
sketch3.addConstraint(Sketcher.Constraint("Distance", 2, Q("0.25 in")))
sketch3.addConstraint(Sketcher.Constraint("Distance", 4, Q("0.15 in")))
sketch3.addConstraint(Sketcher.Constraint("DistanceX", 9, 2, -1, 1, Q("0.22 in")))
sketch3.addConstraint(Sketcher.Constraint("DistanceX", 1, 2, -1, 1, Q("0.175 in")))
sketch3.addConstraint(Sketcher.Constraint("Radius", 25, 19.049992))
sketch3.addConstraint(Sketcher.Constraint("Radius", 60, 19.049989))
sketch3.addConstraint(Sketcher.Constraint("Radius", 3, 3.868776))
sketch3.addConstraint(Sketcher.Constraint("Radius", 10, 7.619994))
sketch3.addConstraint(Sketcher.Constraint("Radius", 12, 15.239987))
sketch3.addConstraint(Sketcher.Constraint("Radius", 58, 11.430017))
sketch3.addConstraint(Sketcher.Constraint("Distance", 18, 7.290999))
sketch3.addConstraint(Sketcher.Constraint("DistanceY", 21, 2, -1, 1, 44.8371))
sketch3.addConstraint(Sketcher.Constraint("Distance", 22, 9.643061))
sketch3.addConstraint(Sketcher.Constraint("DistanceX", 8, 1, 8, 2, 7.883218))
sketch3.addConstraint(Sketcher.Constraint("DistanceY", 21, 2, 21, 1, 13.062857))
sketch3.addConstraint(Sketcher.Constraint("DistanceY", -1, 1, 10, 3, 4.137122))
sketch3.addConstraint(Sketcher.Constraint("DistanceX", -1, 1, 57, 3, 8.50253))
sketch3.addConstraint(Sketcher.Constraint("DistanceY", -1, 1, 57, 3, 1.05177))
sketch3.addConstraint(Sketcher.Constraint("DistanceX", 58, 3, -1, 1, 3.05225))
sketch3.addConstraint(Sketcher.Constraint("DistanceY", 11, 2, -1, 1, 12.21211))
sketch3.addConstraint(Sketcher.Constraint("DistanceY", 12, 2, -1, 1, 18.804579))
sketch3.addConstraint(Sketcher.Constraint("DistanceX", -1, 1, 57, 2, 4.807212))
sketch3.addConstraint(Sketcher.Constraint("DistanceX", 62, 2, -1, 1, 7.347212))
sketch3.addConstraint(Sketcher.Constraint("Distance", 9, 38.565093))
sketch3.addConstraint(Sketcher.Constraint("Distance", 53, 1.324844))
sketch3.addConstraint(Sketcher.Constraint("DistanceX", -1, 1, 1, 3, 7.896604))
sketch3.addConstraint(Sketcher.Constraint("DistanceX", -1, 1, 60, 3, 19.161586))
sketch3.addConstraint(Sketcher.Constraint("DistanceY", -1, 1, 52, 2, 26.643537))
sketch3.setExpression("Constraints[152]", "Params.sketch3_radius")
sketch3.setExpression("Constraints[153]", "Params.sketch3_radius2")
sketch3.setExpression("Constraints[154]", "Params.sketch3_width")
sketch3.setExpression("Constraints[155]", "Params.sketch3_height")
sketch3.setExpression("Constraints[156]", "Params.sketch3_height2")
pocket2 = body.newObject("PartDesign::Pocket", "Pocket001")
pocket2.Profile = sketch3
pocket2.setExpression("Length", "Params.pocket2_length")

# Sketch on XZ plane
sketch4 = body.newObject("Sketcher::SketchObject", "Sketch003")
sketch4.AttachmentSupport = (doc.getObject("XZ_Plane"), [""])
sketch4.MapMode = "FlatFace"
sketch4.addGeometry(Part.LineSegment(Vector(-19.05, -74.954243, 0), Vector(-28.887378, -92.734243, 0)), False)
sketch4.addGeometry(Part.ArcOfCircle(Part.Circle(Vector(0, 0.00001, 0), Vector(0, 0, 1), 97.12941), math.radians(-107.302182), math.radians(-72.697818)), False)
sketch4.addGeometry(Part.LineSegment(Vector(28.887378, -92.734243, 0), Vector(19.05, -74.954243, 0)), False)
sketch4.addGeometry(Part.ArcOfCircle(Part.Circle(Vector(0, 0.000018, 0), Vector(0, 0, 1), 77.337208), math.radians(-104.260084), math.radians(-75.739916)), False)
sketch4.addGeometry(Part.LineSegment(Vector(7.075714, -83.844243, 0), Vector(11.43, -91.464243, 0)), False)
sketch4.addGeometry(Part.LineSegment(Vector(11.43, -91.464243, 0), Vector(8.89, -91.464243, 0)), False)
sketch4.addGeometry(Part.LineSegment(Vector(8.89, -91.464243, 0), Vector(4.535714, -83.844243, 0)), False)
sketch4.addGeometry(Part.LineSegment(Vector(4.535714, -83.844243, 0), Vector(7.075714, -83.844243, 0)), False)
sketch4.addGeometry(Part.LineSegment(Vector(1.27, -91.464243, 0), Vector(-3.81, -82.574243, 0)), False)
sketch4.addGeometry(Part.LineSegment(Vector(-3.81, -82.574243, 0), Vector(-8.89, -91.464243, 0)), False)
sketch4.addGeometry(Part.LineSegment(Vector(-8.89, -91.464243, 0), Vector(-11.43, -91.464243, 0)), False)
sketch4.addGeometry(Part.LineSegment(Vector(-11.43, -91.464243, 0), Vector(-5.724769, -81.480089, 0)), False)
sketch4.addGeometry(Part.ArcOfCircle(Part.Circle(Vector(-3.81, -82.574242, 0), Vector(0, 0, 1), 2.205337), math.radians(29.744863), math.radians(150.255137)), False)
sketch4.addGeometry(Part.LineSegment(Vector(-1.895231, -81.480089, 0), Vector(3.81, -91.464243, 0)), False)
sketch4.addGeometry(Part.LineSegment(Vector(3.81, -91.464243, 0), Vector(1.27, -91.464243, 0)), False)
sketch4.addGeometry(Part.LineSegment(Vector(5.089807, -80.368905, 0), Vector(6.35, -82.574243, 0)), False)
sketch4.addGeometry(Part.LineSegment(Vector(6.35, -82.574243, 0), Vector(3.81, -82.574243, 0)), False)
sketch4.addGeometry(Part.LineSegment(Vector(3.81, -82.574243, 0), Vector(2.549807, -80.368905, 0)), False)
sketch4.addGeometry(Part.LineSegment(Vector(2.549807, -80.368905, 0), Vector(5.089807, -80.368905, 0)), False)
sketch4.addConstraint(Sketcher.Constraint("Coincident", 0, 2, 1, 1))
sketch4.addConstraint(Sketcher.Constraint("Coincident", 1, 2, 2, 1))
sketch4.addConstraint(Sketcher.Constraint("Coincident", 2, 2, 3, 2))
sketch4.addConstraint(Sketcher.Constraint("Coincident", 3, 1, 0, 1))
sketch4.addConstraint(Sketcher.Constraint("Coincident", 4, 2, 5, 1))
sketch4.addConstraint(Sketcher.Constraint("Coincident", 5, 2, 6, 1))
sketch4.addConstraint(Sketcher.Constraint("Coincident", 6, 2, 7, 1))
sketch4.addConstraint(Sketcher.Constraint("Coincident", 7, 2, 4, 1))
sketch4.addConstraint(Sketcher.Constraint("Coincident", 8, 2, 9, 1))
sketch4.addConstraint(Sketcher.Constraint("Coincident", 9, 2, 10, 1))
sketch4.addConstraint(Sketcher.Constraint("Coincident", 10, 2, 11, 1))
sketch4.addConstraint(Sketcher.Constraint("Tangent", 11, 2, 12, 2))
sketch4.addConstraint(Sketcher.Constraint("Tangent", 12, 1, 13, 1))
sketch4.addConstraint(Sketcher.Constraint("Coincident", 13, 2, 14, 1))
sketch4.addConstraint(Sketcher.Constraint("Coincident", 14, 2, 8, 1))
sketch4.addConstraint(Sketcher.Constraint("Coincident", 15, 2, 16, 1))
sketch4.addConstraint(Sketcher.Constraint("Coincident", 16, 2, 17, 1))
sketch4.addConstraint(Sketcher.Constraint("Coincident", 17, 2, 18, 1))
sketch4.addConstraint(Sketcher.Constraint("Coincident", 18, 2, 15, 1))
sketch4.addConstraint(Sketcher.Constraint("Horizontal", 5))
sketch4.addConstraint(Sketcher.Constraint("Horizontal", 7))
sketch4.addConstraint(Sketcher.Constraint("Horizontal", 10))
sketch4.addConstraint(Sketcher.Constraint("Horizontal", 14))
sketch4.addConstraint(Sketcher.Constraint("Horizontal", 16))
sketch4.addConstraint(Sketcher.Constraint("Horizontal", 18))
sketch4.addConstraint(Sketcher.Constraint("Coincident", 3, 3, 1, 3))
sketch4.addConstraint(Sketcher.Constraint("Coincident", 8, 2, 12, 3))
sketch4.addConstraint(Sketcher.Constraint("Symmetric", 0, 2, 1, 2, -2))
sketch4.addConstraint(Sketcher.Constraint("Symmetric", 5, 2, 9, 2, -2))
sketch4.addConstraint(Sketcher.Constraint("Symmetric", 8, 2, 16, 2, -2))
sketch4.addConstraint(Sketcher.Constraint("Parallel", 4, 6))
sketch4.addConstraint(Sketcher.Constraint("Parallel", 6, 8))
sketch4.addConstraint(Sketcher.Constraint("Parallel", 9, 11))
sketch4.addConstraint(Sketcher.Constraint("Parallel", 8, 13))
sketch4.addConstraint(Sketcher.Constraint("Parallel", 13, 15))
sketch4.addConstraint(Sketcher.Constraint("Parallel", 15, 17))
sketch4.addConstraint(Sketcher.Constraint("Horizontal", 2, 2, 3, 1))
sketch4.addConstraint(Sketcher.Constraint("Horizontal", 11, 2, 12, 1))
sketch4.addConstraint(Sketcher.Constraint("Horizontal", 10, 2, 13, 2))
sketch4.addConstraint(Sketcher.Constraint("Vertical", 13, 2, 16, 2))
sketch4.addConstraint(Sketcher.Constraint("Equal", 7, 10))
sketch4.addConstraint(Sketcher.Constraint("Equal", 14, 16))
sketch4.addConstraint(Sketcher.Constraint("DistanceX", 5, 2, 5, 1, Q("0.1 in")))
sketch4.addConstraint(Sketcher.Constraint("Distance", 0, Q("0.8 in")))
sketch4.addConstraint(Sketcher.Constraint("Distance", 15, Q("0.1 in")))
sketch4.addConstraint(Sketcher.Constraint("DistanceY", 0, 2, 12, 3, Q("0.4 in")))
sketch4.addConstraint(Sketcher.Constraint("DistanceY", 1, 2, 2, 2, Q("0.7 in")))
sketch4.addConstraint(Sketcher.Constraint("DistanceX", 12, 3, 2, 2, Q("0.9 in")))
sketch4.addConstraint(Sketcher.Constraint("DistanceX", 3, 1, 12, 3, Q("0.6 in")))
sketch4.addConstraint(Sketcher.Constraint("DistanceY", 5, 2, 6, 2, Q("0.3 in")))
sketch4.addConstraint(Sketcher.Constraint("DistanceY", 1, 2, 4, 2, Q("0.05 in")))
sketch4.addConstraint(Sketcher.Constraint("Radius", 1, 97.12941))
sketch4.addConstraint(Sketcher.Constraint("DistanceY", 12, 3, -1, 1, 82.574242))
sketch4.setExpression("Constraints[42]", "Params.sketch4_width")
sketch4.setExpression("Constraints[43]", "Params.sketch4_length")
sketch4.setExpression("Constraints[44]", "Params.sketch4_length2")
pocket3 = body.newObject("PartDesign::Pocket", "Pocket002")
pocket3.Profile = sketch4
pocket3.setExpression("Length", "Params.pocket3_length")

doc.recompute()
